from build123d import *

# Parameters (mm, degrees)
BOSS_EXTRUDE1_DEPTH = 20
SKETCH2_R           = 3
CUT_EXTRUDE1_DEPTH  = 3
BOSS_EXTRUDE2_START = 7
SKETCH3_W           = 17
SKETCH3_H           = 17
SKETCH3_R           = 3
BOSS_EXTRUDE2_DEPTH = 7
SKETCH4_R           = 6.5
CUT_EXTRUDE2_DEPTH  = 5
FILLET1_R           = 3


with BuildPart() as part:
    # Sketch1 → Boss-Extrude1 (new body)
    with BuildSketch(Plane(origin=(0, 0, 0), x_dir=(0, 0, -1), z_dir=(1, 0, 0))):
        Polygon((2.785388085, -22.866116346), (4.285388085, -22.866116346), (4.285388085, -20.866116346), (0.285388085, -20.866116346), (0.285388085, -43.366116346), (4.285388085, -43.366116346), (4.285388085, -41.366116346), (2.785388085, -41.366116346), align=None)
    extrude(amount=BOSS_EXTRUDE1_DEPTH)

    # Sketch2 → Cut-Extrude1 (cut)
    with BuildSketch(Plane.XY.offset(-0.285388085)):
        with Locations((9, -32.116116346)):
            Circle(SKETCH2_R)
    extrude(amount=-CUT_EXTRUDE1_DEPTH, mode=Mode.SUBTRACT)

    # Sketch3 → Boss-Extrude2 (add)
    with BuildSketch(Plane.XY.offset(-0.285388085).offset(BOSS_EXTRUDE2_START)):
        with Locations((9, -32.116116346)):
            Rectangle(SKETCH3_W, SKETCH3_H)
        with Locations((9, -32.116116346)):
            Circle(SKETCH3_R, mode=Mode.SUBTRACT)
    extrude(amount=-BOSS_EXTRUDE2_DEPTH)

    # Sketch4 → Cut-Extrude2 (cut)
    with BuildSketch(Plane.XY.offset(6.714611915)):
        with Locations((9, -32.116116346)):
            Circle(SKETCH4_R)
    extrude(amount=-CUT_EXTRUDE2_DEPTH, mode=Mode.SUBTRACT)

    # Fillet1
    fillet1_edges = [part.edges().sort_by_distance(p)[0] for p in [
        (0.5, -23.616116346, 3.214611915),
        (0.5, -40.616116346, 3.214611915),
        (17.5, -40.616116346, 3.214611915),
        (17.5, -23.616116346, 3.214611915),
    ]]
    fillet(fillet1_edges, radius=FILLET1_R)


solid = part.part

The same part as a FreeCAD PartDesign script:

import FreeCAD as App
import Part
import Sketcher
from FreeCAD import Vector
Q = App.Units.Quantity


def edges_at(feature, points):
    """Names of the edges that pass closest to the given points."""
    edges = feature.Shape.Edges
    near = lambda p: min(range(len(edges)), key=lambda i: edges[i].distToShape(Part.Vertex(*p))[0])
    return sorted({f"Edge{near(p) + 1}" for p in points})

doc = App.newDocument("Part")
body = doc.addObject("PartDesign::Body", "Body")

# Sketch on YZ plane
sketch1 = body.newObject("Sketcher::SketchObject", "Sketch")
sketch1.AttachmentSupport = (doc.getObject("YZ_Plane"), [""])
sketch1.MapMode = "FlatFace"
sketch1.addGeometry([
    Part.LineSegment(Vector(-22.9, -2.8, 0), Vector(-22.9, -4.3, 0)),  # 0
    Part.LineSegment(Vector(-22.9, -4.3, 0), Vector(-20.9, -4.3, 0)),  # 1
    Part.LineSegment(Vector(-20.9, -4.3, 0), Vector(-20.9, -0.3, 0)),  # 2
    Part.LineSegment(Vector(-20.9, -0.3, 0), Vector(-43.4, -0.3, 0)),  # 3
    Part.LineSegment(Vector(-43.4, -0.3, 0), Vector(-43.4, -4.3, 0)),  # 4
    Part.LineSegment(Vector(-43.4, -4.3, 0), Vector(-41.4, -4.3, 0)),  # 5
    Part.LineSegment(Vector(-41.4, -4.3, 0), Vector(-41.4, -2.8, 0)),  # 6
    Part.LineSegment(Vector(-41.4, -2.8, 0), Vector(-22.9, -2.8, 0)),  # 7
], False)
sketch1.addConstraint([
    Sketcher.Constraint("Coincident", 0, 2, 1, 1),
    Sketcher.Constraint("Coincident", 1, 2, 2, 1),
    Sketcher.Constraint("Coincident", 2, 2, 3, 1),
    Sketcher.Constraint("Coincident", 3, 2, 4, 1),
    Sketcher.Constraint("Coincident", 4, 2, 5, 1),
    Sketcher.Constraint("Coincident", 5, 2, 6, 1),
    Sketcher.Constraint("Coincident", 6, 2, 7, 1),
    Sketcher.Constraint("Coincident", 7, 2, 0, 1),
    Sketcher.Constraint("Vertical", 0),
    Sketcher.Constraint("Horizontal", 1),
    Sketcher.Constraint("Vertical", 2),
    Sketcher.Constraint("Horizontal", 3),
    Sketcher.Constraint("Vertical", 4),
    Sketcher.Constraint("Horizontal", 5),
    Sketcher.Constraint("Vertical", 6),
    Sketcher.Constraint("Horizontal", 7),
    Sketcher.Constraint("Horizontal", 1, 2, 4, 2),
    Sketcher.Constraint("Equal", 1, 5),
    Sketcher.Constraint("DistanceX", 1, 1, 1, 2, Q("2 mm")),
    Sketcher.Constraint("DistanceY", 2, 1, 2, 2, Q("4 mm")),
    Sketcher.Constraint("DistanceX", 3, 2, 3, 1, Q("22.5 mm")),
    Sketcher.Constraint("DistanceY", 0, 2, 0, 1, Q("1.5 mm")),
    Sketcher.Constraint("DistanceY", 0, 2, -1, 1, Q("4.285388 mm")),
    Sketcher.Constraint("DistanceX", 0, 2, -1, 1, Q("22.866116 mm")),
])
pad1 = body.newObject("PartDesign::Pad", "Pad")
pad1.Profile = sketch1
pad1.Length = 20

# Sketch on XY plane
sketch2 = body.newObject("Sketcher::SketchObject", "Sketch001")
sketch2.AttachmentSupport = (doc.getObject("XY_Plane"), [""])
sketch2.MapMode = "FlatFace"
sketch2.AttachmentOffset = App.Placement(Vector(0, 0, -0.285388), App.Rotation())
sketch2.addGeometry(Part.Circle(Vector(9, -32.1, 0), Vector(0, 0, 1), 3), False)
sketch2.addConstraint([
    Sketcher.Constraint("Diameter", 0, Q("6 mm")),
    Sketcher.Constraint("DistanceX", -1, 1, 0, 3, Q("9 mm")),
    Sketcher.Constraint("DistanceY", 0, 3, -1, 1, Q("32.116116 mm")),
])
pocket1 = body.newObject("PartDesign::Pocket", "Pocket")
pocket1.Profile = sketch2
pocket1.Length = 3

# Sketch on XY plane
sketch3 = body.newObject("Sketcher::SketchObject", "Sketch002")
sketch3.AttachmentSupport = (doc.getObject("XY_Plane"), [""])
sketch3.MapMode = "FlatFace"
sketch3.AttachmentOffset = App.Placement(Vector(0, 0, 6.714612), App.Rotation())
sketch3.addGeometry([
    Part.LineSegment(Vector(0.5, -23.6, 0), Vector(0.5, -40.6, 0)),  # 0
    Part.LineSegment(Vector(0.5, -40.6, 0), Vector(17.5, -40.6, 0)),  # 1
    Part.LineSegment(Vector(17.5, -40.6, 0), Vector(17.5, -23.6, 0)),  # 2
    Part.LineSegment(Vector(17.5, -23.6, 0), Vector(0.5, -23.6, 0)),  # 3
    Part.Circle(Vector(9, -32.1, 0), Vector(0, 0, 1), 3),  # 4
], False)
sketch3.addConstraint([
    Sketcher.Constraint("Coincident", 0, 2, 1, 1),
    Sketcher.Constraint("Coincident", 1, 2, 2, 1),
    Sketcher.Constraint("Coincident", 2, 2, 3, 1),
    Sketcher.Constraint("Coincident", 3, 2, 0, 1),
    Sketcher.Constraint("Vertical", 0),
    Sketcher.Constraint("Horizontal", 1),
    Sketcher.Constraint("Vertical", 2),
    Sketcher.Constraint("Horizontal", 3),
    Sketcher.Constraint("Equal", 3, 0),
    Sketcher.Constraint("Diameter", 4, Q("6 mm")),
    Sketcher.Constraint("DistanceX", 1, 1, 1, 2, Q("17 mm")),
    Sketcher.Constraint("DistanceX", -1, 1, 4, 3, Q("9 mm")),
    Sketcher.Constraint("DistanceX", -1, 1, 0, 2, Q("0.5 mm")),
    Sketcher.Constraint("DistanceY", 0, 2, 4, 3, Q("8.5 mm")),
    Sketcher.Constraint("DistanceY", 4, 3, -1, 1, Q("32.116116 mm")),
])
pad2 = body.newObject("PartDesign::Pad", "Pad001")
pad2.Profile = sketch3
pad2.Length = 7
pad2.Reversed = True

# Sketch on XY plane
sketch4 = body.newObject("Sketcher::SketchObject", "Sketch003")
sketch4.AttachmentSupport = (doc.getObject("XY_Plane"), [""])
sketch4.MapMode = "FlatFace"
sketch4.AttachmentOffset = App.Placement(Vector(0, 0, 6.714612), App.Rotation())
sketch4.addGeometry(Part.Circle(Vector(9, -32, 0), Vector(0, 0, 1), 6), False)
sketch4.addConstraint([
    Sketcher.Constraint("Diameter", 0, Q("13 mm")),
    Sketcher.Constraint("DistanceX", -1, 1, 0, 3, Q("9 mm")),
    Sketcher.Constraint("DistanceY", 0, 3, -1, 1, Q("32.116116 mm")),
])
pocket2 = body.newObject("PartDesign::Pocket", "Pocket001")
pocket2.Profile = sketch4
pocket2.Length = 5
doc.recompute()

fillet = body.newObject("PartDesign::Fillet", "Fillet")
fillet.Base = (pocket2, edges_at(pocket2, [
    (0.5, -23.616, 3.215),
    (0.5, -40.616, 3.215),
    (17.5, -40.616, 3.215),
    (17.5, -23.616, 3.215),
]))
fillet.Radius = 3

doc.recompute()
